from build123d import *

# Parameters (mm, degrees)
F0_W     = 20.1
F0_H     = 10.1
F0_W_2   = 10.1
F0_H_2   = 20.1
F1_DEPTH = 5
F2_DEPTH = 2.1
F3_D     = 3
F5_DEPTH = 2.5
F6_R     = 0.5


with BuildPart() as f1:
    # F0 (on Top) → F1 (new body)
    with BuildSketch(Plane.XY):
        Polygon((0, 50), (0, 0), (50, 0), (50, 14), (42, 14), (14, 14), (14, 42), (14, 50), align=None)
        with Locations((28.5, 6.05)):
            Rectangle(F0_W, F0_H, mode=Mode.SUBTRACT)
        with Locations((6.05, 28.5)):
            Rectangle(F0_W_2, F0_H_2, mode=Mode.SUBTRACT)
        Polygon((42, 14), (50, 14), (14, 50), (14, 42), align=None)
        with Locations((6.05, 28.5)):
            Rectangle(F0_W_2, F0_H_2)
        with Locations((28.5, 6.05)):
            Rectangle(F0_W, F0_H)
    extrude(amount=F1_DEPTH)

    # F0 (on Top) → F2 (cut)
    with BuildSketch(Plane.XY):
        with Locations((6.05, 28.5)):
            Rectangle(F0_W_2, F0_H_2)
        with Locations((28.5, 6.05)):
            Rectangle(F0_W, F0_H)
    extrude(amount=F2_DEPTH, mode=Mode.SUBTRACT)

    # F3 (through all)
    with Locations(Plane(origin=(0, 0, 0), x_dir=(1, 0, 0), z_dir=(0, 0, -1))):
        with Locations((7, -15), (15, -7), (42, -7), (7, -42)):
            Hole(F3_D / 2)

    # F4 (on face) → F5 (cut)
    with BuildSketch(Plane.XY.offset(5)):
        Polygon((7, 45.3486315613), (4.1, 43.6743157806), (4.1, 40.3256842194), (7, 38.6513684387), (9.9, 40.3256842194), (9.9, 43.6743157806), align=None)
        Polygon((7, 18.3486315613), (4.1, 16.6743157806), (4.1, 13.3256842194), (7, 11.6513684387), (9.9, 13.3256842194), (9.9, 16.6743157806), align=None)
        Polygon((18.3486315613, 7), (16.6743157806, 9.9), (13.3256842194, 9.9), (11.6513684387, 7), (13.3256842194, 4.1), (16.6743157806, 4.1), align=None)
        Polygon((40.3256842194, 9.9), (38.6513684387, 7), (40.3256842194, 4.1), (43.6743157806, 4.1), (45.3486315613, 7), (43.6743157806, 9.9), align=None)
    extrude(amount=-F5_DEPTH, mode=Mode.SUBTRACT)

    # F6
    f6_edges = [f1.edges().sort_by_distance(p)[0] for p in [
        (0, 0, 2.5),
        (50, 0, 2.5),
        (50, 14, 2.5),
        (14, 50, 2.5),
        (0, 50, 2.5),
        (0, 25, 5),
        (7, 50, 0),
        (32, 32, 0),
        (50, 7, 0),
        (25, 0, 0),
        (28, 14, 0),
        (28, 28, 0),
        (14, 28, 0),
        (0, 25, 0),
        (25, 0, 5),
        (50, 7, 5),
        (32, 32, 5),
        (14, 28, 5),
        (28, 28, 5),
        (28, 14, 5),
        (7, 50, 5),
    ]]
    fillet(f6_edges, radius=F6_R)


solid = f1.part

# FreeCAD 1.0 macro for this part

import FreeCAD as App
import Part
import Sketcher

V = App.Vector
Q = App.Units.Quantity


def edges_at(feature, points):
    """Names of the edges that pass closest to the given points."""
    edges = feature.Shape.Edges
    near = lambda p: min(range(len(edges)), key=lambda i: edges[i].distToShape(Part.Vertex(*p))[0])
    return sorted({f"Edge{near(p) + 1}" for p in points})

doc = App.newDocument("Part")
body = doc.addObject("PartDesign::Body", "Body")

# Sketch on XY plane
sketch1 = body.newObject("Sketcher::SketchObject", "Sketch")
sketch1.AttachmentSupport = (doc.getObject("XY_Plane"), [""])
sketch1.MapMode = "FlatFace"
sketch1.addGeometry(Part.LineSegment(V(0, 50, 0), V(0, 0, 0)), False)
sketch1.addGeometry(Part.LineSegment(V(0, 0, 0), V(50, 0, 0)), False)
sketch1.addGeometry(Part.LineSegment(V(50, 0, 0), V(50, 14, 0)), False)
sketch1.addGeometry(Part.LineSegment(V(50, 14, 0), V(14, 50, 0)), False)
sketch1.addGeometry(Part.LineSegment(V(14, 50, 0), V(0, 50, 0)), False)
sketch1.addGeometry(Part.LineSegment(V(14, 14, 0), V(14, 42, 0)), False)
sketch1.addGeometry(Part.LineSegment(V(14, 42, 0), V(42, 14, 0)), False)
sketch1.addGeometry(Part.LineSegment(V(42, 14, 0), V(14, 14, 0)), False)
sketch1.addConstraint(Sketcher.Constraint("Coincident", 0, 2, 1, 1))
sketch1.addConstraint(Sketcher.Constraint("Coincident", 1, 2, 2, 1))
sketch1.addConstraint(Sketcher.Constraint("Coincident", 2, 2, 3, 1))
sketch1.addConstraint(Sketcher.Constraint("Coincident", 3, 2, 4, 1))
sketch1.addConstraint(Sketcher.Constraint("Coincident", 4, 2, 0, 1))
sketch1.addConstraint(Sketcher.Constraint("Coincident", 5, 2, 6, 1))
sketch1.addConstraint(Sketcher.Constraint("Coincident", 6, 2, 7, 1))
sketch1.addConstraint(Sketcher.Constraint("Coincident", 7, 2, 5, 1))
sketch1.addConstraint(Sketcher.Constraint("Vertical", 0))
sketch1.addConstraint(Sketcher.Constraint("Horizontal", 1))
sketch1.addConstraint(Sketcher.Constraint("Vertical", 2))
sketch1.addConstraint(Sketcher.Constraint("Horizontal", 4))
sketch1.addConstraint(Sketcher.Constraint("Vertical", 5))
sketch1.addConstraint(Sketcher.Constraint("Horizontal", 7))
sketch1.addConstraint(Sketcher.Constraint("Coincident", 0, 2, -1, 1))
sketch1.addConstraint(Sketcher.Constraint("Parallel", 3, 6))
sketch1.addConstraint(Sketcher.Constraint("Horizontal", 2, 2, 6, 2))
sketch1.addConstraint(Sketcher.Constraint("Vertical", 3, 2, 5, 2))
sketch1.addConstraint(Sketcher.Constraint("Equal", 1, 0))
sketch1.addConstraint(Sketcher.Constraint("Equal", 4, 2))
sketch1.addConstraint(Sketcher.Constraint("DistanceX", 1, 1, 1, 2, 50.0))
sketch1.addConstraint(Sketcher.Constraint("DistanceX", 4, 2, 4, 1, 14.0))
sketch1.addConstraint(Sketcher.Constraint("DistanceX", 7, 2, 7, 1, 28.0))
pad1 = body.newObject("PartDesign::Pad", "Pad")
pad1.Profile = sketch1
pad1.Length = 5

# Sketch on XY plane
sketch2 = body.newObject("Sketcher::SketchObject", "Sketch001")
sketch2.AttachmentSupport = (doc.getObject("XY_Plane"), [""])
sketch2.MapMode = "FlatFace"
sketch2.addGeometry(Part.LineSegment(V(1, 39, 0), V(1, 18, 0)), False)
sketch2.addGeometry(Part.LineSegment(V(1, 18, 0), V(11, 18, 0)), False)
sketch2.addGeometry(Part.LineSegment(V(11, 18, 0), V(11, 39, 0)), False)
sketch2.addGeometry(Part.LineSegment(V(11, 39, 0), V(1, 39, 0)), False)
sketch2.addGeometry(Part.LineSegment(V(18, 11, 0), V(18, 1, 0)), False)
sketch2.addGeometry(Part.LineSegment(V(18, 1, 0), V(39, 1, 0)), False)
sketch2.addGeometry(Part.LineSegment(V(39, 1, 0), V(39, 11, 0)), False)
sketch2.addGeometry(Part.LineSegment(V(39, 11, 0), V(18, 11, 0)), False)
sketch2.addConstraint(Sketcher.Constraint("Coincident", 0, 2, 1, 1))
sketch2.addConstraint(Sketcher.Constraint("Coincident", 1, 2, 2, 1))
sketch2.addConstraint(Sketcher.Constraint("Coincident", 2, 2, 3, 1))
sketch2.addConstraint(Sketcher.Constraint("Coincident", 3, 2, 0, 1))
sketch2.addConstraint(Sketcher.Constraint("Coincident", 4, 2, 5, 1))
sketch2.addConstraint(Sketcher.Constraint("Coincident", 5, 2, 6, 1))
sketch2.addConstraint(Sketcher.Constraint("Coincident", 6, 2, 7, 1))
sketch2.addConstraint(Sketcher.Constraint("Coincident", 7, 2, 4, 1))
sketch2.addConstraint(Sketcher.Constraint("Vertical", 0))
sketch2.addConstraint(Sketcher.Constraint("Horizontal", 1))
sketch2.addConstraint(Sketcher.Constraint("Vertical", 2))
sketch2.addConstraint(Sketcher.Constraint("Horizontal", 3))
sketch2.addConstraint(Sketcher.Constraint("Vertical", 4))
sketch2.addConstraint(Sketcher.Constraint("Horizontal", 5))
sketch2.addConstraint(Sketcher.Constraint("Vertical", 6))
sketch2.addConstraint(Sketcher.Constraint("Horizontal", 7))
sketch2.addConstraint(Sketcher.Constraint("Equal", 7, 0))
sketch2.addConstraint(Sketcher.Constraint("Equal", 3, 4))
sketch2.addConstraint(Sketcher.Constraint("DistanceX", 1, 1, 1, 2, 10.1))
sketch2.addConstraint(Sketcher.Constraint("DistanceX", 5, 1, 5, 2, 20.1))
sketch2.addConstraint(Sketcher.Constraint("DistanceX", -1, 1, 0, 2, 1.0))
sketch2.addConstraint(Sketcher.Constraint("DistanceY", -1, 1, 4, 2, 1.0))
sketch2.addConstraint(Sketcher.Constraint("DistanceY", -1, 1, 0, 2, 18.45))
sketch2.addConstraint(Sketcher.Constraint("DistanceX", -1, 1, 4, 2, 18.45))
pocket1 = body.newObject("PartDesign::Pocket", "Pocket")
pocket1.Profile = sketch2
pocket1.Length = 2.1
pocket1.Reversed = True

# Sketch on XY plane
sketch3 = body.newObject("Sketcher::SketchObject", "Sketch002")
sketch3.AttachmentSupport = (doc.getObject("XY_Plane"), [""])
sketch3.MapMode = "FlatFace"
sketch3.addGeometry(Part.Circle(V(7, 15, 0), V(0, 0, 1), 1.5), False)
sketch3.addGeometry(Part.Circle(V(15, 7, 0), V(0, 0, 1), 1.5), False)
sketch3.addGeometry(Part.Circle(V(42, 7, 0), V(0, 0, 1), 1.5), False)
sketch3.addGeometry(Part.Circle(V(7, 42, 0), V(0, 0, 1), 1.5), False)
sketch3.addConstraint(Sketcher.Constraint("Equal", 0, 1))
sketch3.addConstraint(Sketcher.Constraint("Equal", 1, 2))
sketch3.addConstraint(Sketcher.Constraint("Equal", 2, 3))
sketch3.addConstraint(Sketcher.Constraint("Horizontal", 1, 3, 2, 3))
sketch3.addConstraint(Sketcher.Constraint("Vertical", 0, 3, 3, 3))
sketch3.addConstraint(Sketcher.Constraint("Diameter", 0, 3.0))
sketch3.addConstraint(Sketcher.Constraint("DistanceX", -1, 1, 0, 3, 7.0))
sketch3.addConstraint(Sketcher.Constraint("DistanceY", -1, 1, 0, 3, 15.0))
sketch3.addConstraint(Sketcher.Constraint("DistanceX", -1, 1, 1, 3, 15.0))
sketch3.addConstraint(Sketcher.Constraint("DistanceY", -1, 1, 1, 3, 7.0))
sketch3.addConstraint(Sketcher.Constraint("DistanceX", -1, 1, 2, 3, 42.0))
sketch3.addConstraint(Sketcher.Constraint("DistanceY", -1, 1, 3, 3, 42.0))
doc.recompute()
hole = body.newObject("PartDesign::Hole", "Hole")
hole.Profile = sketch3
hole.ThreadType = "None"
hole.Diameter = 3
hole.DepthType = "ThroughAll"
hole.Reversed = True

# Sketch on XY plane
sketch4 = body.newObject("Sketcher::SketchObject", "Sketch003")
sketch4.AttachmentSupport = (doc.getObject("XY_Plane"), [""])
sketch4.MapMode = "FlatFace"
sketch4.AttachmentOffset = App.Placement(V(0, 0, 5), App.Rotation())
sketch4.addGeometry(Part.LineSegment(V(7, 45.3, 0), V(4.1, 43.7, 0)), False)
sketch4.addGeometry(Part.LineSegment(V(4.1, 43.7, 0), V(4.1, 40.3, 0)), False)
sketch4.addGeometry(Part.LineSegment(V(4.1, 40.3, 0), V(7, 38.7, 0)), False)
sketch4.addGeometry(Part.LineSegment(V(7, 38.7, 0), V(9.9, 40.3, 0)), False)
sketch4.addGeometry(Part.LineSegment(V(9.9, 40.3, 0), V(9.9, 43.7, 0)), False)
sketch4.addGeometry(Part.LineSegment(V(9.9, 43.7, 0), V(7, 45.3, 0)), False)
sketch4.addGeometry(Part.LineSegment(V(7, 18.3, 0), V(4.1, 16.7, 0)), False)
sketch4.addGeometry(Part.LineSegment(V(4.1, 16.7, 0), V(4.1, 13.3, 0)), False)
sketch4.addGeometry(Part.LineSegment(V(4.1, 13.3, 0), V(7, 11.7, 0)), False)
sketch4.addGeometry(Part.LineSegment(V(7, 11.7, 0), V(9.9, 13.3, 0)), False)
sketch4.addGeometry(Part.LineSegment(V(9.9, 13.3, 0), V(9.9, 16.7, 0)), False)
sketch4.addGeometry(Part.LineSegment(V(9.9, 16.7, 0), V(7, 18.3, 0)), False)
sketch4.addGeometry(Part.LineSegment(V(18.3, 7, 0), V(16.7, 9.9, 0)), False)
sketch4.addGeometry(Part.LineSegment(V(16.7, 9.9, 0), V(13.3, 9.9, 0)), False)
sketch4.addGeometry(Part.LineSegment(V(13.3, 9.9, 0), V(11.7, 7, 0)), False)
sketch4.addGeometry(Part.LineSegment(V(11.7, 7, 0), V(13.3, 4.1, 0)), False)
sketch4.addGeometry(Part.LineSegment(V(13.3, 4.1, 0), V(16.7, 4.1, 0)), False)
sketch4.addGeometry(Part.LineSegment(V(16.7, 4.1, 0), V(18.3, 7, 0)), False)
sketch4.addGeometry(Part.LineSegment(V(40.3, 9.9, 0), V(38.7, 7, 0)), False)
sketch4.addGeometry(Part.LineSegment(V(38.7, 7, 0), V(40.3, 4.1, 0)), False)
sketch4.addGeometry(Part.LineSegment(V(40.3, 4.1, 0), V(43.7, 4.1, 0)), False)
sketch4.addGeometry(Part.LineSegment(V(43.7, 4.1, 0), V(45.3, 7, 0)), False)
sketch4.addGeometry(Part.LineSegment(V(45.3, 7, 0), V(43.7, 9.9, 0)), False)
sketch4.addGeometry(Part.LineSegment(V(43.7, 9.9, 0), V(40.3, 9.9, 0)), False)
sketch4.addConstraint(Sketcher.Constraint("Coincident", 0, 2, 1, 1))
sketch4.addConstraint(Sketcher.Constraint("Coincident", 1, 2, 2, 1))
sketch4.addConstraint(Sketcher.Constraint("Coincident", 2, 2, 3, 1))
sketch4.addConstraint(Sketcher.Constraint("Coincident", 3, 2, 4, 1))
sketch4.addConstraint(Sketcher.Constraint("Coincident", 4, 2, 5, 1))
sketch4.addConstraint(Sketcher.Constraint("Coincident", 5, 2, 0, 1))
sketch4.addConstraint(Sketcher.Constraint("Coincident", 6, 2, 7, 1))
sketch4.addConstraint(Sketcher.Constraint("Coincident", 7, 2, 8, 1))
sketch4.addConstraint(Sketcher.Constraint("Coincident", 8, 2, 9, 1))
sketch4.addConstraint(Sketcher.Constraint("Coincident", 9, 2, 10, 1))
sketch4.addConstraint(Sketcher.Constraint("Coincident", 10, 2, 11, 1))
sketch4.addConstraint(Sketcher.Constraint("Coincident", 11, 2, 6, 1))
sketch4.addConstraint(Sketcher.Constraint("Coincident", 12, 2, 13, 1))
sketch4.addConstraint(Sketcher.Constraint("Coincident", 13, 2, 14, 1))
sketch4.addConstraint(Sketcher.Constraint("Coincident", 14, 2, 15, 1))
sketch4.addConstraint(Sketcher.Constraint("Coincident", 15, 2, 16, 1))
sketch4.addConstraint(Sketcher.Constraint("Coincident", 16, 2, 17, 1))
sketch4.addConstraint(Sketcher.Constraint("Coincident", 17, 2, 12, 1))
sketch4.addConstraint(Sketcher.Constraint("Coincident", 18, 2, 19, 1))
sketch4.addConstraint(Sketcher.Constraint("Coincident", 19, 2, 20, 1))
sketch4.addConstraint(Sketcher.Constraint("Coincident", 20, 2, 21, 1))
sketch4.addConstraint(Sketcher.Constraint("Coincident", 21, 2, 22, 1))
sketch4.addConstraint(Sketcher.Constraint("Coincident", 22, 2, 23, 1))
sketch4.addConstraint(Sketcher.Constraint("Coincident", 23, 2, 18, 1))
sketch4.addConstraint(Sketcher.Constraint("Vertical", 1))
sketch4.addConstraint(Sketcher.Constraint("Vertical", 4))
sketch4.addConstraint(Sketcher.Constraint("Vertical", 7))
sketch4.addConstraint(Sketcher.Constraint("Vertical", 10))
sketch4.addConstraint(Sketcher.Constraint("Horizontal", 13))
sketch4.addConstraint(Sketcher.Constraint("Horizontal", 16))
sketch4.addConstraint(Sketcher.Constraint("Horizontal", 20))
sketch4.addConstraint(Sketcher.Constraint("Horizontal", 23))
sketch4.addConstraint(Sketcher.Constraint("Parallel", 0, 3))
sketch4.addConstraint(Sketcher.Constraint("Parallel", 2, 5))
sketch4.addConstraint(Sketcher.Constraint("Parallel", 3, 6))
sketch4.addConstraint(Sketcher.Constraint("Parallel", 5, 8))
sketch4.addConstraint(Sketcher.Constraint("Parallel", 6, 9))
sketch4.addConstraint(Sketcher.Constraint("Parallel", 8, 11))
sketch4.addConstraint(Sketcher.Constraint("Perpendicular", 9, 12))
sketch4.addConstraint(Sketcher.Constraint("Perpendicular", 11, 14))
sketch4.addConstraint(Sketcher.Constraint("Parallel", 12, 15))
sketch4.addConstraint(Sketcher.Constraint("Parallel", 14, 17))
sketch4.addConstraint(Sketcher.Constraint("Parallel", 17, 18))
sketch4.addConstraint(Sketcher.Constraint("Parallel", 15, 19))
sketch4.addConstraint(Sketcher.Constraint("Parallel", 18, 21))
sketch4.addConstraint(Sketcher.Constraint("Parallel", 19, 22))
sketch4.addConstraint(Sketcher.Constraint("Horizontal", 1, 2, 3, 2))
sketch4.addConstraint(Sketcher.Constraint("Horizontal", 0, 2, 4, 2))
sketch4.addConstraint(Sketcher.Constraint("Horizontal", 7, 2, 9, 2))
sketch4.addConstraint(Sketcher.Constraint("Horizontal", 6, 2, 10, 2))
sketch4.addConstraint(Sketcher.Constraint("Horizontal", 14, 2, 17, 2))
sketch4.addConstraint(Sketcher.Constraint("Horizontal", 17, 2, 18, 2))
sketch4.addConstraint(Sketcher.Constraint("Horizontal", 16, 2, 19, 2))
sketch4.addConstraint(Sketcher.Constraint("Horizontal", 18, 2, 21, 2))
sketch4.addConstraint(Sketcher.Constraint("Horizontal", 13, 2, 22, 2))
sketch4.addConstraint(Sketcher.Constraint("Vertical", 2, 2, 5, 2))
sketch4.addConstraint(Sketcher.Constraint("Vertical", 1, 2, 6, 2))
sketch4.addConstraint(Sketcher.Constraint("Vertical", 5, 2, 8, 2))
sketch4.addConstraint(Sketcher.Constraint("Vertical", 13, 2, 15, 2))
sketch4.addConstraint(Sketcher.Constraint("Equal", 16, 20))
sketch4.addConstraint(Sketcher.Constraint("Equal", 23, 1))
sketch4.addConstraint(Sketcher.Constraint("Equal", 4, 7))
sketch4.addConstraint(Sketcher.Constraint("Equal", 11, 12))
sketch4.addConstraint(Sketcher.Constraint("Angle", 0, Q("-150 deg")))
sketch4.addConstraint(Sketcher.Constraint("DistanceX", -1, 1, 2, 2, 7.0))
sketch4.addConstraint(Sketcher.Constraint("DistanceY", -1, 1, 14, 2, 7.0))
sketch4.addConstraint(Sketcher.Constraint("DistanceY", 6, 2, 0, 2, 27.0))
sketch4.addConstraint(Sketcher.Constraint("DistanceX", 15, 2, 19, 2, 27.0))
sketch4.addConstraint(Sketcher.Constraint("DistanceX", -1, 1, 0, 2, 4.1))
sketch4.addConstraint(Sketcher.Constraint("DistanceX", 13, 2, 13, 1, 3.348632))
sketch4.addConstraint(Sketcher.Constraint("DistanceY", -1, 1, 2, 2, 38.651368))
sketch4.addConstraint(Sketcher.Constraint("DistanceX", -1, 1, 14, 2, 11.651368))
pocket2 = body.newObject("PartDesign::Pocket", "Pocket001")
pocket2.Profile = sketch4
pocket2.Length = 2.5
doc.recompute()

fillet = body.newObject("PartDesign::Fillet", "Fillet")
fillet.Base = (pocket2, edges_at(pocket2, [
    (0, 0, 2.5),
    (50, 0, 2.5),
    (50, 14, 2.5),
    (14, 50, 2.5),
    (0, 50, 2.5),
    (0, 25, 5),
    (7, 50, 0),
    (32, 32, 0),
    (50, 7, 0),
    (25, 0, 0),
    (28, 14, 0),
    (28, 28, 0),
    (14, 28, 0),
    (0, 25, 0),
    (25, 0, 5),
    (50, 7, 5),
    (32, 32, 5),
    (14, 28, 5),
    (28, 28, 5),
    (28, 14, 5),
    (7, 50, 5),
]))
fillet.Radius = 0.5

doc.recompute()
